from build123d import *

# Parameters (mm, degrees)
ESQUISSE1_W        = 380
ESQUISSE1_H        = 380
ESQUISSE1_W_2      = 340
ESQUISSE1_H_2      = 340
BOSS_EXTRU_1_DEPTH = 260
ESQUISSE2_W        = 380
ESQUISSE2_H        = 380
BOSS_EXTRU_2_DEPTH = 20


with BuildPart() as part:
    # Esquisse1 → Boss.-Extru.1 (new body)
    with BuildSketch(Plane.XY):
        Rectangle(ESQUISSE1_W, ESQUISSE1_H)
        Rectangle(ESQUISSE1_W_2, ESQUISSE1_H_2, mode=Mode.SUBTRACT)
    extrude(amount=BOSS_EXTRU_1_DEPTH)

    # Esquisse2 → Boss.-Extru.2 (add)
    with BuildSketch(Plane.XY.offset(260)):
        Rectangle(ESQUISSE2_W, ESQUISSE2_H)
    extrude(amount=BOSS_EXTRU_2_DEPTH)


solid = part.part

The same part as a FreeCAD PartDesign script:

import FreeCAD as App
import Part
import Sketcher

V = App.Vector
Q = App.Units.Quantity


def add_polygon(sketch, points):
    """Adds a closed chain of lines whose ends are joined by coincident constraints."""
    first, n = sketch.GeometryCount, len(points)
    for a, b in zip(points, points[1:] + points[:1]):
        sketch.addGeometry(Part.LineSegment(App.Vector(*a, 0), App.Vector(*b, 0)), False)
    for i in range(n):
        sketch.addConstraint(Sketcher.Constraint("Coincident", first + i, 2, first + (i + 1) % n, 1))

doc = App.newDocument("Part")
body = doc.addObject("PartDesign::Body", "Body")

# Sketch on XY plane
sketch1 = body.newObject("Sketcher::SketchObject", "Sketch")
sketch1.AttachmentSupport = (doc.getObject("XY_Plane"), [""])
sketch1.MapMode = "FlatFace"
add_polygon(sketch1, [(-190, 190), (-190, -190), (190, -190), (190, 190)])  # lines 0-3
add_polygon(sketch1, [(170, -170), (-170, -170), (-170, 170), (170, 170)])  # lines 4-7
sketch1.addConstraint([
    Sketcher.Constraint("Vertical", 0),
    Sketcher.Constraint("Horizontal", 1),
    Sketcher.Constraint("Vertical", 2),
    Sketcher.Constraint("Horizontal", 3),
    Sketcher.Constraint("Horizontal", 4),
    Sketcher.Constraint("Vertical", 5),
    Sketcher.Constraint("Horizontal", 6),
    Sketcher.Constraint("Vertical", 7),
    Sketcher.Constraint("Symmetric", 0, 2, 2, 2, -1, 1),
    Sketcher.Constraint("Symmetric", 4, 2, 6, 2, -1, 1),
    Sketcher.Constraint("Equal", 3, 0),
    Sketcher.Constraint("Equal", 6, 5),
    Sketcher.Constraint("DistanceX", 1, 1, 1, 2, Q("380 mm")),
    Sketcher.Constraint("DistanceX", 4, 2, 4, 1, Q("340 mm")),
])
pad1 = body.newObject("PartDesign::Pad", "Pad")
pad1.Profile = sketch1
pad1.Length = 260

# Sketch on XY plane
sketch2 = body.newObject("Sketcher::SketchObject", "Sketch001")
sketch2.AttachmentSupport = (doc.getObject("XY_Plane"), [""])
sketch2.MapMode = "FlatFace"
sketch2.AttachmentOffset = App.Placement(V(0, 0, 260), App.Rotation())
add_polygon(sketch2, [(-190, 190), (-190, -190), (190, -190), (190, 190)])  # lines 0-3
sketch2.addConstraint([
    Sketcher.Constraint("Vertical", 0),
    Sketcher.Constraint("Horizontal", 1),
    Sketcher.Constraint("Vertical", 2),
    Sketcher.Constraint("Horizontal", 3),
    Sketcher.Constraint("Symmetric", 0, 2, 2, 2, -1, 1),
    Sketcher.Constraint("Equal", 3, 0),
    Sketcher.Constraint("DistanceX", 1, 1, 1, 2, Q("380 mm")),
])
pad2 = body.newObject("PartDesign::Pad", "Pad001")
pad2.Profile = sketch2
pad2.Length = 20

doc.recompute()
